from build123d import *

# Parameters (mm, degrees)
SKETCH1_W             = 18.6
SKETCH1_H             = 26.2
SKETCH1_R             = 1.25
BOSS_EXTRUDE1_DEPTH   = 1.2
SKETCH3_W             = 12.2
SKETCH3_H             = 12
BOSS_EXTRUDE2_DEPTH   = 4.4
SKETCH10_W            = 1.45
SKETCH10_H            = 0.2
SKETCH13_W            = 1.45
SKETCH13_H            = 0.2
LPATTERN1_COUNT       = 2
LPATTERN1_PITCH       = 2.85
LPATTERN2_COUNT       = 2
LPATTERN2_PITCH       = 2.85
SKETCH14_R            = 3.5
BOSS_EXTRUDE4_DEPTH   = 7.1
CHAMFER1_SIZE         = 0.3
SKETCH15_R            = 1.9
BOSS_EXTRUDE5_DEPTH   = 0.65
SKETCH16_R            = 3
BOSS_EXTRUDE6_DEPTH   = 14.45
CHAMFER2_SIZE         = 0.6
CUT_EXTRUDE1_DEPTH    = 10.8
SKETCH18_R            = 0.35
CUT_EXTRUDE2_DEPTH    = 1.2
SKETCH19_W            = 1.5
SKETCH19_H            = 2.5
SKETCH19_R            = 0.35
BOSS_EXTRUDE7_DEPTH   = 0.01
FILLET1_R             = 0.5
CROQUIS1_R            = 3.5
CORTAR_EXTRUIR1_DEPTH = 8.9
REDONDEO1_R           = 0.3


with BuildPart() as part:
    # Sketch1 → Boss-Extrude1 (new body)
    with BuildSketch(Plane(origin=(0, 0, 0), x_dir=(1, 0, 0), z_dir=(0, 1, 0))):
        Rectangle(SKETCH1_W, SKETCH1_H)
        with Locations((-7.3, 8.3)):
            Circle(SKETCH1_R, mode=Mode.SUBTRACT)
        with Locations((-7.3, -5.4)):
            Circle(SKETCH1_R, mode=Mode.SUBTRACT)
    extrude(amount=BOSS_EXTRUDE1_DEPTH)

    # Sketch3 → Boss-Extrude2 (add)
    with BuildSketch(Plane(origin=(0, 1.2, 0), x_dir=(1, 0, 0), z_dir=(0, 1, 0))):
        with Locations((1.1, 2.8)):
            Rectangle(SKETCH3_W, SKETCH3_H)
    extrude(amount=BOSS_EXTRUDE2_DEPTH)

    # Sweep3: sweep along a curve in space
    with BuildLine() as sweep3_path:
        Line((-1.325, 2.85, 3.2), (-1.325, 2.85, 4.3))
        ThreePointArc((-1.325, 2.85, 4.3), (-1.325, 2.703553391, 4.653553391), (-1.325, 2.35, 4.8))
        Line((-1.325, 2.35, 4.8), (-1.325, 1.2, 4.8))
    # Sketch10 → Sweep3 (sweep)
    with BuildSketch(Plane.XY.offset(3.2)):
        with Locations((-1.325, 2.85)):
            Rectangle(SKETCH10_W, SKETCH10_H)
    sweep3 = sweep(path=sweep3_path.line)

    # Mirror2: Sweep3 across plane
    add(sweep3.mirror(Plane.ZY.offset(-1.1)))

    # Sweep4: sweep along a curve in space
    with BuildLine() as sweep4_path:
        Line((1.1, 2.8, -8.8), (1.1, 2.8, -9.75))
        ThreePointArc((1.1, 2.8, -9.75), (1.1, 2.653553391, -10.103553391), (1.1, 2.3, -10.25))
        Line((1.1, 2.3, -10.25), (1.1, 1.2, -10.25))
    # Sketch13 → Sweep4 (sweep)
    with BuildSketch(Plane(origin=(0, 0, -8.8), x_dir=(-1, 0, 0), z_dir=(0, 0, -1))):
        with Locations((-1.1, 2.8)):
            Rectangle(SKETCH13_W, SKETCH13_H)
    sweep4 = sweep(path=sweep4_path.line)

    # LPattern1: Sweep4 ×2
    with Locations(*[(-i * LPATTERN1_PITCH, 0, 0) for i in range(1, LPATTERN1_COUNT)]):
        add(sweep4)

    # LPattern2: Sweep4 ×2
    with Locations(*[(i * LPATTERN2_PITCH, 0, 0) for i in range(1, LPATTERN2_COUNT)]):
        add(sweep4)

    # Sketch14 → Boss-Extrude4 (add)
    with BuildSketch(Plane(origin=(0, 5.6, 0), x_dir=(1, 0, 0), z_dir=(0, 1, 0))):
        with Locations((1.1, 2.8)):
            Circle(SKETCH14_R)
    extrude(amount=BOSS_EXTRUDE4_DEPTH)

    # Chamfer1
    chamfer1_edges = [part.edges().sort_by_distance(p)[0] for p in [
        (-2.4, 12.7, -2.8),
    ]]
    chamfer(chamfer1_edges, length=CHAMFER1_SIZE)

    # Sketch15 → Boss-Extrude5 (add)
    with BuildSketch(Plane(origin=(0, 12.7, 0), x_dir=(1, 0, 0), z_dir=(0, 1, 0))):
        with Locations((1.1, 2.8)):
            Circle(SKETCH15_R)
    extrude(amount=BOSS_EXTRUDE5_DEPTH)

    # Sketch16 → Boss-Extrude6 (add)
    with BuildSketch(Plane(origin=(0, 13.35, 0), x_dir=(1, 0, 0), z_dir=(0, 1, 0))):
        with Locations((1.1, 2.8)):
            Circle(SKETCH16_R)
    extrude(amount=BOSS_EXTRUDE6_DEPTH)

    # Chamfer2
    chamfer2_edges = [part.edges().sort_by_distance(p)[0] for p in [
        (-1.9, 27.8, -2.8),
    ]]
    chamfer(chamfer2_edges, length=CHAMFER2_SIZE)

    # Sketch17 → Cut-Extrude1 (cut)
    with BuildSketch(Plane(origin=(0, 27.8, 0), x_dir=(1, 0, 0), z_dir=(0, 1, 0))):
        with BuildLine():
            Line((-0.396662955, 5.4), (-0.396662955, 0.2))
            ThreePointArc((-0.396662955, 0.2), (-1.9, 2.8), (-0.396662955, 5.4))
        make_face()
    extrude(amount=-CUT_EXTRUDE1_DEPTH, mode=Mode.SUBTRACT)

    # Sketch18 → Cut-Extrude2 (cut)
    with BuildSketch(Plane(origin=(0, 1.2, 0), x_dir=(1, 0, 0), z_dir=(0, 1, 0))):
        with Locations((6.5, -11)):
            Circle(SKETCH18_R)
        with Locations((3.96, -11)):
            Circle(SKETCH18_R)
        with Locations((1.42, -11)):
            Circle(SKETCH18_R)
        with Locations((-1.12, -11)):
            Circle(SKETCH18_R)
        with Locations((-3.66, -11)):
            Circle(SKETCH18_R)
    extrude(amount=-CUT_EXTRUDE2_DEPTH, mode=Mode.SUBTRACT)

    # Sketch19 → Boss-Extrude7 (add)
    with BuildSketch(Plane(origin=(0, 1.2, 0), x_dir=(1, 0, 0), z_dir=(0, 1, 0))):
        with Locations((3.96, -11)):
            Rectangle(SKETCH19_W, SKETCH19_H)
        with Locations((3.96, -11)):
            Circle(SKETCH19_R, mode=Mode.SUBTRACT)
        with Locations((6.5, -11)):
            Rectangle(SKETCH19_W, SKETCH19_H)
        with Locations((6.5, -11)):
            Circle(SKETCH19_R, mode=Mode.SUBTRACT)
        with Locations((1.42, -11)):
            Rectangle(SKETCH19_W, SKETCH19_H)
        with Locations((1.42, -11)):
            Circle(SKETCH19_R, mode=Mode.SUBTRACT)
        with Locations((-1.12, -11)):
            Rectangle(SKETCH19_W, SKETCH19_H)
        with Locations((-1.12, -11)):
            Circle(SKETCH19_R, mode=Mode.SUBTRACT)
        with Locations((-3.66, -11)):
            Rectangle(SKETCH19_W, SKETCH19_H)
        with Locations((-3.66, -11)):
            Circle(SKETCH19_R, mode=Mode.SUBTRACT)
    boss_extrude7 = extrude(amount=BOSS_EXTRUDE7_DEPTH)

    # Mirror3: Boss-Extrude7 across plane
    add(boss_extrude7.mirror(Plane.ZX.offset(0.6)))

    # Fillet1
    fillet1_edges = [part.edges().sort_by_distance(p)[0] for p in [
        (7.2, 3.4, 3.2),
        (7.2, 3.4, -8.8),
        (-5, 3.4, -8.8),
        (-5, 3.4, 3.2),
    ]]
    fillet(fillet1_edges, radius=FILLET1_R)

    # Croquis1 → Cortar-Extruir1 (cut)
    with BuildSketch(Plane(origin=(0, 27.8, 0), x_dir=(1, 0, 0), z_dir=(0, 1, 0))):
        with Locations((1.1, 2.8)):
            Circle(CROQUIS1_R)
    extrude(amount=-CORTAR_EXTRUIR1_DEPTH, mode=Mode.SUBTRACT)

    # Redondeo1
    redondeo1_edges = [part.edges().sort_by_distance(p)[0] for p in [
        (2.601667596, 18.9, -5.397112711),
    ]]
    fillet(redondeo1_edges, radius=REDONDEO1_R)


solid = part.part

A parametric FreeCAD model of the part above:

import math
import FreeCAD as App
import Part
import Sketcher
from FreeCAD import Vector
Q = App.Units.Quantity


def edges_at(feature, points):
    """Names of the edges that pass closest to the given points."""
    edges = feature.Shape.Edges
    near = lambda p: min(range(len(edges)), key=lambda i: edges[i].distToShape(Part.Vertex(*p))[0])
    return sorted({f"Edge{near(p) + 1}" for p in points})


def add_polygon(sketch, points):
    """Adds a closed chain of lines whose ends are joined by coincident constraints."""
    first, n = sketch.GeometryCount, len(points)
    for a, b in zip(points, points[1:] + points[:1]):
        sketch.addGeometry(Part.LineSegment(App.Vector(*a, 0), App.Vector(*b, 0)), False)
    for i in range(n):
        sketch.addConstraint(Sketcher.Constraint("Coincident", first + i, 2, first + (i + 1) % n, 1))

doc = App.newDocument("Part")
body = doc.addObject("PartDesign::Body", "Body")

sketch1 = body.newObject("Sketcher::SketchObject", "Sketch")
sketch1.AttachmentSupport = (doc.getObject("XZ_Plane"), [""])
sketch1.MapMode = "FlatFace"
add_polygon(sketch1, [(-9.3, -13.1), (-9.3, 13.1), (9.3, 13.1), (9.3, -13.1)])
sketch1.addGeometry(Part.Circle(Vector(-7.3, 5.4, 0), Vector(0, 0, 1), 1.25), False)
sketch1.addGeometry(Part.Circle(Vector(-7.3, -8.3, 0), Vector(0, 0, 1), 1.25), False)
sketch1.addConstraint(Sketcher.Constraint("Vertical", 0))
sketch1.addConstraint(Sketcher.Constraint("Horizontal", 1))
sketch1.addConstraint(Sketcher.Constraint("Vertical", 2))
sketch1.addConstraint(Sketcher.Constraint("Horizontal", 3))
sketch1.addConstraint(Sketcher.Constraint("Equal", 4, 5))
sketch1.addConstraint(Sketcher.Constraint("Symmetric", 0, 2, 2, 2, -1, 1))
sketch1.addConstraint(Sketcher.Constraint("Vertical", 4, 3, 5, 3))
sketch1.addConstraint(Sketcher.Constraint("Diameter", 4, Q("2.5 mm")))
sketch1.addConstraint(Sketcher.Constraint("DistanceX", 1, 1, 1, 2, Q("18.6 mm")))
sketch1.addConstraint(Sketcher.Constraint("DistanceY", 0, 1, 0, 2, Q("26.2 mm")))
sketch1.addConstraint(Sketcher.Constraint("DistanceX", 0, 2, 4, 3, Q("2 mm")))
sketch1.addConstraint(Sketcher.Constraint("DistanceY", -1, 1, 4, 3, Q("5.4 mm")))
sketch1.addConstraint(Sketcher.Constraint("DistanceY", 5, 3, -1, 1, Q("8.3 mm")))
pad1 = body.newObject("PartDesign::Pad", "Pad")
pad1.Profile = sketch1
pad1.Length = 1.2
pad1.Reversed = True

sketch2 = body.newObject("Sketcher::SketchObject", "Sketch001")
sketch2.AttachmentSupport = (doc.getObject("XZ_Plane"), [""])
sketch2.MapMode = "FlatFace"
sketch2.AttachmentOffset = App.Placement(Vector(0, 0, -1.2), App.Rotation())
add_polygon(sketch2, [(-5, -8.8), (-5, 3.2), (7.2, 3.2), (7.2, -8.8)])
sketch2.addConstraint(Sketcher.Constraint("Vertical", 0))
sketch2.addConstraint(Sketcher.Constraint("Horizontal", 1))
sketch2.addConstraint(Sketcher.Constraint("Vertical", 2))
sketch2.addConstraint(Sketcher.Constraint("Horizontal", 3))
sketch2.addConstraint(Sketcher.Constraint("DistanceY", 0, 1, 0, 2, Q("12 mm")))
sketch2.addConstraint(Sketcher.Constraint("DistanceX", 1, 1, 1, 2, Q("12.2 mm")))
sketch2.addConstraint(Sketcher.Constraint("DistanceX", 0, 2, -1, 1, Q("5 mm")))
sketch2.addConstraint(Sketcher.Constraint("DistanceY", -1, 1, 0, 2, Q("3.2 mm")))
pad2 = body.newObject("PartDesign::Pad", "Pad001")
pad2.Profile = sketch2
pad2.Length = 4.4
pad2.Reversed = True

sketch3 = body.newObject("Sketcher::SketchObject", "Sketch002")
sketch3.AttachmentSupport = (doc.getObject("XY_Plane"), [""])
sketch3.MapMode = "FlatFace"
sketch3.AttachmentOffset = App.Placement(Vector(0, 0, 3.2), App.Rotation())
add_polygon(sketch3, [(-2.05, 2.95), (-2.05, 2.75), (-0.6, 2.75), (-0.6, 2.95)])
sketch3.addConstraint(Sketcher.Constraint("Vertical", 0))
sketch3.addConstraint(Sketcher.Constraint("Horizontal", 1))
sketch3.addConstraint(Sketcher.Constraint("Vertical", 2))
sketch3.addConstraint(Sketcher.Constraint("Horizontal", 3))
sketch3.addConstraint(Sketcher.Constraint("DistanceY", 0, 2, 0, 1, Q("0.2 mm")))
sketch3.addConstraint(Sketcher.Constraint("DistanceX", 1, 1, 1, 2, Q("1.45 mm")))
sketch3.addConstraint(Sketcher.Constraint("DistanceX", 1, 2, -1, 1, Q("0.6 mm")))
sketch3.addConstraint(Sketcher.Constraint("DistanceY", -1, 1, 0, 2, Q("2.75 mm")))

sketch4 = body.newObject("Sketcher::SketchObject", "Sketch003")
sketch4.AttachmentSupport = (doc.getObject("YZ_Plane"), [""])
sketch4.MapMode = "FlatFace"
sketch4.AttachmentOffset = App.Placement(Vector(0, 0, -1.325), App.Rotation())
sketch4.addGeometry(Part.LineSegment(Vector(2.85, 3.2, 0), Vector(2.85, 4.3, 0)), False)
sketch4.addGeometry(Part.ArcOfCircle(Part.Circle(Vector(2.35, 4.3, 0), Vector(0, 0, 1), 0.5), math.radians(0), math.radians(90)), False)
sketch4.addGeometry(Part.LineSegment(Vector(2.35, 4.8, 0), Vector(1.2, 4.8, 0)), False)
sketch4.addConstraint(Sketcher.Constraint("Tangent", 0, 2, 1, 1))
sketch4.addConstraint(Sketcher.Constraint("Tangent", 1, 2, 2, 1))
sketch4.addConstraint(Sketcher.Constraint("Vertical", 0))
sketch4.addConstraint(Sketcher.Constraint("Horizontal", 2))
sketch4.addConstraint(Sketcher.Constraint("Radius", 1, Q("0.5 mm")))
sketch4.addConstraint(Sketcher.Constraint("DistanceY", 0, 1, 0, 2, Q("1.1 mm")))
sketch4.addConstraint(Sketcher.Constraint("DistanceX", 2, 2, 2, 1, Q("1.15 mm")))
sketch4.addConstraint(Sketcher.Constraint("DistanceY", -1, 1, 1, 3, Q("4.3 mm")))
sketch4.addConstraint(Sketcher.Constraint("DistanceX", -1, 1, 2, 2, Q("1.2 mm")))
doc.recompute()

additivepipe = body.newObject("PartDesign::AdditivePipe", "AdditivePipe")
additivepipe.Profile = sketch3
additivepipe.Spine = (sketch4, ["Edge1", "Edge2", "Edge3"])
doc.recompute()

datumplane = body.newObject("PartDesign::Plane", "DatumPlane")
datumplane.AttachmentSupport = (doc.getObject("YZ_Plane"), [""])
datumplane.MapMode = "FlatFace"
datumplane.AttachmentOffset = App.Placement(Vector(0, 0, 1.1), App.Rotation())
mirrored = body.newObject("PartDesign::Mirrored", "Mirrored")
mirrored.Originals = [additivepipe]
mirrored.MirrorPlane = (datumplane, [""])
body.Tip = mirrored

sketch5 = body.newObject("Sketcher::SketchObject", "Sketch004")
sketch5.AttachmentSupport = (doc.getObject("XY_Plane"), [""])
sketch5.MapMode = "FlatFace"
sketch5.AttachmentOffset = App.Placement(Vector(0, 0, -8.8), App.Rotation())
add_polygon(sketch5, [(1.825, 2.9), (1.825, 2.7), (0.375, 2.7), (0.375, 2.9)])
sketch5.addConstraint(Sketcher.Constraint("Vertical", 0))
sketch5.addConstraint(Sketcher.Constraint("Horizontal", 1))
sketch5.addConstraint(Sketcher.Constraint("Vertical", 2))
sketch5.addConstraint(Sketcher.Constraint("Horizontal", 3))
sketch5.addConstraint(Sketcher.Constraint("DistanceY", 0, 2, 0, 1, Q("0.2 mm")))
sketch5.addConstraint(Sketcher.Constraint("DistanceX", 1, 2, 1, 1, Q("1.45 mm")))
sketch5.addConstraint(Sketcher.Constraint("DistanceY", -1, 1, 0, 2, Q("2.7 mm")))
sketch5.addConstraint(Sketcher.Constraint("DistanceX", -1, 1, 0, 2, Q("1.825 mm")))

sketch6 = body.newObject("Sketcher::SketchObject", "Sketch005")
sketch6.AttachmentSupport = (doc.getObject("YZ_Plane"), [""])
sketch6.MapMode = "FlatFace"
sketch6.AttachmentOffset = App.Placement(Vector(0, 0, 1.1), App.Rotation())
sketch6.addGeometry(Part.LineSegment(Vector(2.8, -8.8, 0), Vector(2.8, -9.75, 0)), False)
sketch6.addGeometry(Part.ArcOfCircle(Part.Circle(Vector(2.3, -9.75, 0), Vector(0, 0, 1), 0.5), math.radians(-90), math.radians(0)), False)
sketch6.addGeometry(Part.LineSegment(Vector(2.3, -10.25, 0), Vector(1.2, -10.25, 0)), False)
sketch6.addConstraint(Sketcher.Constraint("Tangent", 0, 2, 1, 2))
sketch6.addConstraint(Sketcher.Constraint("Tangent", 1, 1, 2, 1))
sketch6.addConstraint(Sketcher.Constraint("Vertical", 0))
sketch6.addConstraint(Sketcher.Constraint("Horizontal", 2))
sketch6.addConstraint(Sketcher.Constraint("Radius", 1, Q("0.5 mm")))
sketch6.addConstraint(Sketcher.Constraint("DistanceX", 2, 2, 2, 1, Q("1.1 mm")))
sketch6.addConstraint(Sketcher.Constraint("DistanceY", 0, 2, 0, 1, Q("0.95 mm")))
sketch6.addConstraint(Sketcher.Constraint("DistanceX", -1, 1, 1, 3, Q("2.3 mm")))
sketch6.addConstraint(Sketcher.Constraint("DistanceY", 0, 1, -1, 1, Q("8.8 mm")))
doc.recompute()

additivepipe2 = body.newObject("PartDesign::AdditivePipe", "AdditivePipe001")
additivepipe2.Profile = sketch5
additivepipe2.Spine = (sketch6, ["Edge1", "Edge2", "Edge3"])
doc.recompute()

linearpattern = body.newObject("PartDesign::LinearPattern", "LinearPattern")
linearpattern.Originals = [additivepipe2]
linearpattern.Direction = (doc.getObject("X_Axis"), [""])
linearpattern.Mode = "offset"
linearpattern.Offset = 2.85
linearpattern.Occurrences = 2
linearpattern.Reversed = True
body.Tip = linearpattern
doc.recompute()

linearpattern2 = body.newObject("PartDesign::LinearPattern", "LinearPattern001")
linearpattern2.Originals = [additivepipe2]
linearpattern2.Direction = (doc.getObject("X_Axis"), [""])
linearpattern2.Mode = "offset"
linearpattern2.Offset = 2.85
linearpattern2.Occurrences = 2
body.Tip = linearpattern2

sketch7 = body.newObject("Sketcher::SketchObject", "Sketch006")
sketch7.AttachmentSupport = (doc.getObject("XZ_Plane"), [""])
sketch7.MapMode = "FlatFace"
sketch7.AttachmentOffset = App.Placement(Vector(0, 0, -5.6), App.Rotation())
sketch7.addGeometry(Part.Circle(Vector(1.1, -2.8, 0), Vector(0, 0, 1), 3.5), False)
sketch7.addConstraint(Sketcher.Constraint("Diameter", 0, Q("7 mm")))
sketch7.addConstraint(Sketcher.Constraint("DistanceX", -1, 1, 0, 3, Q("1.1 mm")))
sketch7.addConstraint(Sketcher.Constraint("DistanceY", 0, 3, -1, 1, Q("2.8 mm")))
pad3 = body.newObject("PartDesign::Pad", "Pad002")
pad3.Profile = sketch7
pad3.Length = 7.1
pad3.Reversed = True
doc.recompute()

chamfer = body.newObject("PartDesign::Chamfer", "Chamfer")
chamfer.Base = (pad3, edges_at(pad3, [(-2.4, 12.7, -2.8)]))
chamfer.Size = 0.3

sketch8 = body.newObject("Sketcher::SketchObject", "Sketch007")
sketch8.AttachmentSupport = (doc.getObject("XZ_Plane"), [""])
sketch8.MapMode = "FlatFace"
sketch8.AttachmentOffset = App.Placement(Vector(0, 0, -12.7), App.Rotation())
sketch8.addGeometry(Part.Circle(Vector(1.1, -2.8, 0), Vector(0, 0, 1), 1.9), False)
sketch8.addConstraint(Sketcher.Constraint("Diameter", 0, Q("3.8 mm")))
sketch8.addConstraint(Sketcher.Constraint("DistanceX", -1, 1, 0, 3, Q("1.1 mm")))
sketch8.addConstraint(Sketcher.Constraint("DistanceY", 0, 3, -1, 1, Q("2.8 mm")))
pad4 = body.newObject("PartDesign::Pad", "Pad003")
pad4.Profile = sketch8
pad4.Length = 0.65
pad4.Reversed = True

sketch9 = body.newObject("Sketcher::SketchObject", "Sketch008")
sketch9.AttachmentSupport = (doc.getObject("XZ_Plane"), [""])
sketch9.MapMode = "FlatFace"
sketch9.AttachmentOffset = App.Placement(Vector(0, 0, -13.35), App.Rotation())
sketch9.addGeometry(Part.Circle(Vector(1.1, -2.8, 0), Vector(0, 0, 1), 3), False)
sketch9.addConstraint(Sketcher.Constraint("Diameter", 0, Q("6 mm")))
sketch9.addConstraint(Sketcher.Constraint("DistanceX", -1, 1, 0, 3, Q("1.1 mm")))
sketch9.addConstraint(Sketcher.Constraint("DistanceY", 0, 3, -1, 1, Q("2.8 mm")))
pad5 = body.newObject("PartDesign::Pad", "Pad004")
pad5.Profile = sketch9
pad5.Length = 14.45
pad5.Reversed = True
doc.recompute()

chamfer2 = body.newObject("PartDesign::Chamfer", "Chamfer001")
chamfer2.Base = (pad5, edges_at(pad5, [(-1.9, 27.8, -2.8)]))
chamfer2.Size = 0.6

sketch10 = body.newObject("Sketcher::SketchObject", "Sketch009")
sketch10.AttachmentSupport = (doc.getObject("XZ_Plane"), [""])
sketch10.MapMode = "FlatFace"
sketch10.AttachmentOffset = App.Placement(Vector(0, 0, -27.8), App.Rotation())
sketch10.addGeometry(Part.LineSegment(Vector(-0.396663, -0.2, 0), Vector(-0.396663, -5.4, 0)), False)
sketch10.addGeometry(Part.ArcOfCircle(Part.Circle(Vector(1.1, -2.8, 0), Vector(0, 0, 1), 3), math.radians(119.926435), math.radians(240.073565)), False)
sketch10.addConstraint(Sketcher.Constraint("Coincident", 0, 1, 1, 1))
sketch10.addConstraint(Sketcher.Constraint("Coincident", 1, 2, 0, 2))
sketch10.addConstraint(Sketcher.Constraint("Vertical", 0))
sketch10.addConstraint(Sketcher.Constraint("Radius", 1, Q("3 mm")))
sketch10.addConstraint(Sketcher.Constraint("DistanceY", 0, 2, 0, 1, Q("5.2 mm")))
sketch10.addConstraint(Sketcher.Constraint("DistanceX", -1, 1, 1, 3, Q("1.1 mm")))
sketch10.addConstraint(Sketcher.Constraint("DistanceY", 1, 3, -1, 1, Q("2.8 mm")))
pocket1 = body.newObject("PartDesign::Pocket", "Pocket")
pocket1.Profile = sketch10
pocket1.Length = 10.8
pocket1.Reversed = True

sketch11 = body.newObject("Sketcher::SketchObject", "Sketch010")
sketch11.AttachmentSupport = (doc.getObject("XZ_Plane"), [""])
sketch11.MapMode = "FlatFace"
sketch11.AttachmentOffset = App.Placement(Vector(0, 0, -1.2), App.Rotation())
sketch11.addGeometry(Part.Circle(Vector(6.5, 11, 0), Vector(0, 0, 1), 0.35), False)
sketch11.addGeometry(Part.Circle(Vector(3.96, 11, 0), Vector(0, 0, 1), 0.35), False)
sketch11.addGeometry(Part.Circle(Vector(1.42, 11, 0), Vector(0, 0, 1), 0.35), False)
sketch11.addGeometry(Part.Circle(Vector(-1.12, 11, 0), Vector(0, 0, 1), 0.35), False)
sketch11.addGeometry(Part.Circle(Vector(-3.66, 11, 0), Vector(0, 0, 1), 0.35), False)
sketch11.addConstraint(Sketcher.Constraint("Equal", 0, 1))
sketch11.addConstraint(Sketcher.Constraint("Equal", 1, 2))
sketch11.addConstraint(Sketcher.Constraint("Equal", 2, 3))
sketch11.addConstraint(Sketcher.Constraint("Equal", 3, 4))
sketch11.addConstraint(Sketcher.Constraint("Horizontal", 0, 3, 1, 3))
sketch11.addConstraint(Sketcher.Constraint("Horizontal", 1, 3, 2, 3))
sketch11.addConstraint(Sketcher.Constraint("Horizontal", 2, 3, 3, 3))
sketch11.addConstraint(Sketcher.Constraint("Horizontal", 3, 3, 4, 3))
sketch11.addConstraint(Sketcher.Constraint("Diameter", 0, Q("0.7 mm")))
sketch11.addConstraint(Sketcher.Constraint("DistanceY", -1, 1, 0, 3, Q("11 mm")))
sketch11.addConstraint(Sketcher.Constraint("DistanceX", -1, 1, 0, 3, Q("6.5 mm")))
sketch11.addConstraint(Sketcher.Constraint("DistanceX", -1, 1, 1, 3, Q("3.96 mm")))
sketch11.addConstraint(Sketcher.Constraint("DistanceX", -1, 1, 2, 3, Q("1.42 mm")))
sketch11.addConstraint(Sketcher.Constraint("DistanceX", 3, 3, -1, 1, Q("1.12 mm")))
sketch11.addConstraint(Sketcher.Constraint("DistanceX", 4, 3, -1, 1, Q("3.66 mm")))
pocket2 = body.newObject("PartDesign::Pocket", "Pocket001")
pocket2.Profile = sketch11
pocket2.Length = 1.2
pocket2.Reversed = True

sketch12 = body.newObject("Sketcher::SketchObject", "Sketch011")
sketch12.AttachmentSupport = (doc.getObject("XZ_Plane"), [""])
sketch12.MapMode = "FlatFace"
sketch12.AttachmentOffset = App.Placement(Vector(0, 0, -1.2), App.Rotation())
add_polygon(sketch12, [(3.21, 9.75), (3.21, 12.25), (4.71, 12.25), (4.71, 9.75)])
sketch12.addGeometry(Part.Circle(Vector(3.96, 11, 0), Vector(0, 0, 1), 0.35), False)
add_polygon(sketch12, [(5.75, 9.75), (5.75, 12.25), (7.25, 12.25), (7.25, 9.75)])
sketch12.addGeometry(Part.Circle(Vector(6.5, 11, 0), Vector(0, 0, 1), 0.35), False)
add_polygon(sketch12, [(0.67, 9.75), (0.67, 12.25), (2.17, 12.25), (2.17, 9.75)])
sketch12.addGeometry(Part.Circle(Vector(1.42, 11, 0), Vector(0, 0, 1), 0.35), False)
add_polygon(sketch12, [(-1.87, 9.75), (-1.87, 12.25), (-0.37, 12.25), (-0.37, 9.75)])
sketch12.addGeometry(Part.Circle(Vector(-1.12, 11, 0), Vector(0, 0, 1), 0.35), False)
add_polygon(sketch12, [(-4.41, 9.75), (-4.41, 12.25), (-2.91, 12.25), (-2.91, 9.75)])
sketch12.addGeometry(Part.Circle(Vector(-3.66, 11, 0), Vector(0, 0, 1), 0.35), False)
sketch12.addConstraint(Sketcher.Constraint("Vertical", 0))
sketch12.addConstraint(Sketcher.Constraint("Horizontal", 1))
sketch12.addConstraint(Sketcher.Constraint("Vertical", 2))
sketch12.addConstraint(Sketcher.Constraint("Horizontal", 3))
sketch12.addConstraint(Sketcher.Constraint("Vertical", 5))
sketch12.addConstraint(Sketcher.Constraint("Horizontal", 6))
sketch12.addConstraint(Sketcher.Constraint("Vertical", 7))
sketch12.addConstraint(Sketcher.Constraint("Horizontal", 8))
sketch12.addConstraint(Sketcher.Constraint("Vertical", 10))
sketch12.addConstraint(Sketcher.Constraint("Horizontal", 11))
sketch12.addConstraint(Sketcher.Constraint("Vertical", 12))
sketch12.addConstraint(Sketcher.Constraint("Horizontal", 13))
sketch12.addConstraint(Sketcher.Constraint("Vertical", 15))
sketch12.addConstraint(Sketcher.Constraint("Horizontal", 16))
sketch12.addConstraint(Sketcher.Constraint("Vertical", 17))
sketch12.addConstraint(Sketcher.Constraint("Horizontal", 18))
sketch12.addConstraint(Sketcher.Constraint("Vertical", 20))
sketch12.addConstraint(Sketcher.Constraint("Horizontal", 21))
sketch12.addConstraint(Sketcher.Constraint("Vertical", 22))
sketch12.addConstraint(Sketcher.Constraint("Horizontal", 23))
sketch12.addConstraint(Sketcher.Constraint("Equal", 4, 9))
sketch12.addConstraint(Sketcher.Constraint("Equal", 9, 14))
sketch12.addConstraint(Sketcher.Constraint("Equal", 14, 19))
sketch12.addConstraint(Sketcher.Constraint("Equal", 19, 24))
sketch12.addConstraint(Sketcher.Constraint("Horizontal", 4, 3, 9, 3))
sketch12.addConstraint(Sketcher.Constraint("Horizontal", 9, 3, 14, 3))
sketch12.addConstraint(Sketcher.Constraint("Horizontal", 14, 3, 19, 3))
sketch12.addConstraint(Sketcher.Constraint("Horizontal", 19, 3, 24, 3))
sketch12.addConstraint(Sketcher.Constraint("Horizontal", 1, 2, 5, 2))
sketch12.addConstraint(Sketcher.Constraint("Horizontal", 3, 2, 7, 2))
sketch12.addConstraint(Sketcher.Constraint("Horizontal", 6, 2, 10, 2))
sketch12.addConstraint(Sketcher.Constraint("Horizontal", 8, 2, 12, 2))
sketch12.addConstraint(Sketcher.Constraint("Horizontal", 11, 2, 15, 2))
sketch12.addConstraint(Sketcher.Constraint("Horizontal", 13, 2, 17, 2))
sketch12.addConstraint(Sketcher.Constraint("Horizontal", 16, 2, 20, 2))
sketch12.addConstraint(Sketcher.Constraint("Horizontal", 18, 2, 22, 2))
sketch12.addConstraint(Sketcher.Constraint("Equal", 3, 6))
sketch12.addConstraint(Sketcher.Constraint("Equal", 8, 11))
sketch12.addConstraint(Sketcher.Constraint("Equal", 13, 16))
sketch12.addConstraint(Sketcher.Constraint("Equal", 18, 21))
sketch12.addConstraint(Sketcher.Constraint("Diameter", 4, Q("0.7 mm")))
sketch12.addConstraint(Sketcher.Constraint("DistanceX", 1, 1, 1, 2, Q("1.5 mm")))
sketch12.addConstraint(Sketcher.Constraint("DistanceY", 0, 1, 0, 2, Q("2.5 mm")))
sketch12.addConstraint(Sketcher.Constraint("DistanceY", -1, 1, 4, 3, Q("11 mm")))
sketch12.addConstraint(Sketcher.Constraint("DistanceX", -1, 1, 9, 3, Q("6.5 mm")))
sketch12.addConstraint(Sketcher.Constraint("DistanceX", -1, 1, 4, 3, Q("3.96 mm")))
sketch12.addConstraint(Sketcher.Constraint("DistanceX", -1, 1, 14, 3, Q("1.42 mm")))
sketch12.addConstraint(Sketcher.Constraint("DistanceX", 19, 3, -1, 1, Q("1.12 mm")))
sketch12.addConstraint(Sketcher.Constraint("DistanceX", 24, 3, -1, 1, Q("3.66 mm")))
sketch12.addConstraint(Sketcher.Constraint("DistanceX", -1, 1, 0, 2, Q("3.21 mm")))
sketch12.addConstraint(Sketcher.Constraint("DistanceY", -1, 1, 0, 2, Q("12.25 mm")))
sketch12.addConstraint(Sketcher.Constraint("DistanceX", -1, 1, 5, 2, Q("5.75 mm")))
sketch12.addConstraint(Sketcher.Constraint("DistanceX", -1, 1, 10, 2, Q("0.67 mm")))
sketch12.addConstraint(Sketcher.Constraint("DistanceX", 15, 2, -1, 1, Q("1.87 mm")))
sketch12.addConstraint(Sketcher.Constraint("DistanceX", 20, 2, -1, 1, Q("4.41 mm")))
pad6 = body.newObject("PartDesign::Pad", "Pad005")
pad6.Profile = sketch12
pad6.Length = 0.01
pad6.Reversed = True
doc.recompute()

datumplane2 = body.newObject("PartDesign::Plane", "DatumPlane001")
datumplane2.AttachmentSupport = (doc.getObject("XZ_Plane"), [""])
datumplane2.MapMode = "FlatFace"
datumplane2.AttachmentOffset = App.Placement(Vector(0, 0, -0.6), App.Rotation())
mirrored2 = body.newObject("PartDesign::Mirrored", "Mirrored001")
mirrored2.Originals = [pad6]
mirrored2.MirrorPlane = (datumplane2, [""])
body.Tip = mirrored2
doc.recompute()

fillet = body.newObject("PartDesign::Fillet", "Fillet")
fillet.Base = (mirrored2, edges_at(mirrored2, [
    (7.2, 3.4, 3.2),
    (7.2, 3.4, -8.8),
    (-5, 3.4, -8.8),
    (-5, 3.4, 3.2),
]))
fillet.Radius = 0.5

sketch13 = body.newObject("Sketcher::SketchObject", "Sketch012")
sketch13.AttachmentSupport = (doc.getObject("XZ_Plane"), [""])
sketch13.MapMode = "FlatFace"
sketch13.AttachmentOffset = App.Placement(Vector(0, 0, -27.8), App.Rotation())
sketch13.addGeometry(Part.Circle(Vector(1.1, -2.8, 0), Vector(0, 0, 1), 3.5), False)
sketch13.addConstraint(Sketcher.Constraint("Diameter", 0, Q("7 mm")))
sketch13.addConstraint(Sketcher.Constraint("DistanceX", -1, 1, 0, 3, Q("1.1 mm")))
sketch13.addConstraint(Sketcher.Constraint("DistanceY", 0, 3, -1, 1, Q("2.8 mm")))
pocket3 = body.newObject("PartDesign::Pocket", "Pocket002")
pocket3.Profile = sketch13
pocket3.Length = 8.9
pocket3.Reversed = True
doc.recompute()

fillet2 = body.newObject("PartDesign::Fillet", "Fillet001")
fillet2.Base = (pocket3, edges_at(pocket3, [(2.602, 18.9, -5.397)]))
fillet2.Radius = 0.3

doc.recompute()
